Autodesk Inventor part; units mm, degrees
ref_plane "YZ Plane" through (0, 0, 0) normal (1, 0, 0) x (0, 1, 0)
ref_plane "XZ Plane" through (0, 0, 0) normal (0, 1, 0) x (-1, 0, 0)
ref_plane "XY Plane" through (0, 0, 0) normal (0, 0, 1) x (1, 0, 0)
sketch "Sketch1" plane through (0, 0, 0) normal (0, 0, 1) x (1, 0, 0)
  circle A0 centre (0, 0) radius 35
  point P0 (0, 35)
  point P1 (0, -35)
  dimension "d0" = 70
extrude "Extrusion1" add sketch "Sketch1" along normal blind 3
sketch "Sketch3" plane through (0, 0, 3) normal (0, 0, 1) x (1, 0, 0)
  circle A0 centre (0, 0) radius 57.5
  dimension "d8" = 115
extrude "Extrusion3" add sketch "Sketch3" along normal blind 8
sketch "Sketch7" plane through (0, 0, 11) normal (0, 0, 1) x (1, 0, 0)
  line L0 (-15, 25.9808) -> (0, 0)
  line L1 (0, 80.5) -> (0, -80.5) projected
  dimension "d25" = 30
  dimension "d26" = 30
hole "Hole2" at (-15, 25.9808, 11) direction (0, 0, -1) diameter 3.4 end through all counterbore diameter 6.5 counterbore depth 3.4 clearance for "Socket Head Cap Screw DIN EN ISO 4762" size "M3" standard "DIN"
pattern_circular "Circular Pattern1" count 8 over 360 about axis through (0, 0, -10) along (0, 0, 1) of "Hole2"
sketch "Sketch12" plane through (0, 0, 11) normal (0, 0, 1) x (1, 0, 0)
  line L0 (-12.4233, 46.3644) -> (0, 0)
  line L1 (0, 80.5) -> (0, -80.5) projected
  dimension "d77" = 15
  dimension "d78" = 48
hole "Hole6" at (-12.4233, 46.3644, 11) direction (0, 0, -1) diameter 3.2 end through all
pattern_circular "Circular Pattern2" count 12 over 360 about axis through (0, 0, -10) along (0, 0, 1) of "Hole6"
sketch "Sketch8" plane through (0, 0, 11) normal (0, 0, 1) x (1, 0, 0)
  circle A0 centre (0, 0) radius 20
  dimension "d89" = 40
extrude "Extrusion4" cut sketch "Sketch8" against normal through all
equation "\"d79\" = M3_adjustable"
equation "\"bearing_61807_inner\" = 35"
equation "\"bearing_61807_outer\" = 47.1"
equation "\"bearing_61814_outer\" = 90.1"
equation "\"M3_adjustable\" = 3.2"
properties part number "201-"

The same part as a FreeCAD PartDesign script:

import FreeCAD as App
import Part
import Sketcher

V = App.Vector

doc = App.newDocument("Part")
body = doc.addObject("PartDesign::Body", "Body")

# Sketch on XY plane
sketch1 = body.newObject("Sketcher::SketchObject", "Sketch")
sketch1.AttachmentSupport = (doc.getObject("XY_Plane"), [""])
sketch1.MapMode = "FlatFace"
sketch1.addGeometry(Part.Circle(V(0, 0, 0), V(0, 0, 1), 35), False)
sketch1.addConstraint([
    Sketcher.Constraint("Coincident", 0, 3, -1, 1),
    Sketcher.Constraint("Diameter", 0, 70.0),
])
pad1 = body.newObject("PartDesign::Pad", "Pad")
pad1.Profile = sketch1
pad1.Length = 3

# Sketch on XY plane
sketch2 = body.newObject("Sketcher::SketchObject", "Sketch001")
sketch2.AttachmentSupport = (doc.getObject("XY_Plane"), [""])
sketch2.MapMode = "FlatFace"
sketch2.AttachmentOffset = App.Placement(V(0, 0, 3), App.Rotation())
sketch2.addGeometry(Part.Circle(V(0, 0, 0), V(0, 0, 1), 57.5), False)
sketch2.addConstraint([
    Sketcher.Constraint("Coincident", 0, 3, -1, 1),
    Sketcher.Constraint("Diameter", 0, 115.0),
])
pad2 = body.newObject("PartDesign::Pad", "Pad001")
pad2.Profile = sketch2
pad2.Length = 8

# Sketch on XY plane
sketch3 = body.newObject("Sketcher::SketchObject", "Sketch002")
sketch3.AttachmentSupport = (doc.getObject("XY_Plane"), [""])
sketch3.MapMode = "FlatFace"
sketch3.AttachmentOffset = App.Placement(V(0, 0, 11), App.Rotation())
sketch3.addGeometry(Part.Circle(V(-15, 25.9808, 0), V(0, 0, 1), 1.7), False)
sketch3.addConstraint([
    Sketcher.Constraint("Diameter", 0, 3.4),
    Sketcher.Constraint("DistanceX", 0, 3, -1, 1, 15.0),
    Sketcher.Constraint("DistanceY", -1, 1, 0, 3, 25.9808),
])
doc.recompute()
hole = body.newObject("PartDesign::Hole", "Hole")
hole.Profile = sketch3
hole.ThreadType = "None"
hole.Diameter = 3.4
hole.DepthType = "ThroughAll"
hole.HoleCutType = "Counterbore"
hole.HoleCutDiameter = 6.5
hole.HoleCutDepth = 3.4
doc.recompute()

polarpattern = body.newObject("PartDesign::PolarPattern", "PolarPattern")
polarpattern.Originals = [hole]
polarpattern.Axis = (doc.getObject("Z_Axis"), [""])
polarpattern.Angle = 360
polarpattern.Occurrences = 8
body.Tip = polarpattern

# Sketch on XY plane
sketch4 = body.newObject("Sketcher::SketchObject", "Sketch003")
sketch4.AttachmentSupport = (doc.getObject("XY_Plane"), [""])
sketch4.MapMode = "FlatFace"
sketch4.AttachmentOffset = App.Placement(V(0, 0, 11), App.Rotation())
sketch4.addGeometry(Part.Circle(V(-12.4233, 46.3644, 0), V(0, 0, 1), 1.6), False)
sketch4.addConstraint([
    Sketcher.Constraint("Diameter", 0, 3.2),
    Sketcher.Constraint("DistanceX", 0, 3, -1, 1, 12.4233),
    Sketcher.Constraint("DistanceY", -1, 1, 0, 3, 46.3644),
])
doc.recompute()
hole2 = body.newObject("PartDesign::Hole", "Hole001")
hole2.Profile = sketch4
hole2.ThreadType = "None"
hole2.Diameter = 3.2
hole2.DepthType = "ThroughAll"
doc.recompute()

polarpattern2 = body.newObject("PartDesign::PolarPattern", "PolarPattern001")
polarpattern2.Originals = [hole2]
polarpattern2.Axis = (doc.getObject("Z_Axis"), [""])
polarpattern2.Angle = 360
polarpattern2.Occurrences = 12
body.Tip = polarpattern2

# Sketch on XY plane
sketch5 = body.newObject("Sketcher::SketchObject", "Sketch004")
sketch5.AttachmentSupport = (doc.getObject("XY_Plane"), [""])
sketch5.MapMode = "FlatFace"
sketch5.AttachmentOffset = App.Placement(V(0, 0, 11), App.Rotation())
sketch5.addGeometry(Part.Circle(V(0, 0, 0), V(0, 0, 1), 20), False)
sketch5.addConstraint([
    Sketcher.Constraint("Coincident", 0, 3, -1, 1),
    Sketcher.Constraint("Diameter", 0, 40.0),
])
pocket1 = body.newObject("PartDesign::Pocket", "Pocket")
pocket1.Profile = sketch5
pocket1.Type = "ThroughAll"

doc.recompute()
